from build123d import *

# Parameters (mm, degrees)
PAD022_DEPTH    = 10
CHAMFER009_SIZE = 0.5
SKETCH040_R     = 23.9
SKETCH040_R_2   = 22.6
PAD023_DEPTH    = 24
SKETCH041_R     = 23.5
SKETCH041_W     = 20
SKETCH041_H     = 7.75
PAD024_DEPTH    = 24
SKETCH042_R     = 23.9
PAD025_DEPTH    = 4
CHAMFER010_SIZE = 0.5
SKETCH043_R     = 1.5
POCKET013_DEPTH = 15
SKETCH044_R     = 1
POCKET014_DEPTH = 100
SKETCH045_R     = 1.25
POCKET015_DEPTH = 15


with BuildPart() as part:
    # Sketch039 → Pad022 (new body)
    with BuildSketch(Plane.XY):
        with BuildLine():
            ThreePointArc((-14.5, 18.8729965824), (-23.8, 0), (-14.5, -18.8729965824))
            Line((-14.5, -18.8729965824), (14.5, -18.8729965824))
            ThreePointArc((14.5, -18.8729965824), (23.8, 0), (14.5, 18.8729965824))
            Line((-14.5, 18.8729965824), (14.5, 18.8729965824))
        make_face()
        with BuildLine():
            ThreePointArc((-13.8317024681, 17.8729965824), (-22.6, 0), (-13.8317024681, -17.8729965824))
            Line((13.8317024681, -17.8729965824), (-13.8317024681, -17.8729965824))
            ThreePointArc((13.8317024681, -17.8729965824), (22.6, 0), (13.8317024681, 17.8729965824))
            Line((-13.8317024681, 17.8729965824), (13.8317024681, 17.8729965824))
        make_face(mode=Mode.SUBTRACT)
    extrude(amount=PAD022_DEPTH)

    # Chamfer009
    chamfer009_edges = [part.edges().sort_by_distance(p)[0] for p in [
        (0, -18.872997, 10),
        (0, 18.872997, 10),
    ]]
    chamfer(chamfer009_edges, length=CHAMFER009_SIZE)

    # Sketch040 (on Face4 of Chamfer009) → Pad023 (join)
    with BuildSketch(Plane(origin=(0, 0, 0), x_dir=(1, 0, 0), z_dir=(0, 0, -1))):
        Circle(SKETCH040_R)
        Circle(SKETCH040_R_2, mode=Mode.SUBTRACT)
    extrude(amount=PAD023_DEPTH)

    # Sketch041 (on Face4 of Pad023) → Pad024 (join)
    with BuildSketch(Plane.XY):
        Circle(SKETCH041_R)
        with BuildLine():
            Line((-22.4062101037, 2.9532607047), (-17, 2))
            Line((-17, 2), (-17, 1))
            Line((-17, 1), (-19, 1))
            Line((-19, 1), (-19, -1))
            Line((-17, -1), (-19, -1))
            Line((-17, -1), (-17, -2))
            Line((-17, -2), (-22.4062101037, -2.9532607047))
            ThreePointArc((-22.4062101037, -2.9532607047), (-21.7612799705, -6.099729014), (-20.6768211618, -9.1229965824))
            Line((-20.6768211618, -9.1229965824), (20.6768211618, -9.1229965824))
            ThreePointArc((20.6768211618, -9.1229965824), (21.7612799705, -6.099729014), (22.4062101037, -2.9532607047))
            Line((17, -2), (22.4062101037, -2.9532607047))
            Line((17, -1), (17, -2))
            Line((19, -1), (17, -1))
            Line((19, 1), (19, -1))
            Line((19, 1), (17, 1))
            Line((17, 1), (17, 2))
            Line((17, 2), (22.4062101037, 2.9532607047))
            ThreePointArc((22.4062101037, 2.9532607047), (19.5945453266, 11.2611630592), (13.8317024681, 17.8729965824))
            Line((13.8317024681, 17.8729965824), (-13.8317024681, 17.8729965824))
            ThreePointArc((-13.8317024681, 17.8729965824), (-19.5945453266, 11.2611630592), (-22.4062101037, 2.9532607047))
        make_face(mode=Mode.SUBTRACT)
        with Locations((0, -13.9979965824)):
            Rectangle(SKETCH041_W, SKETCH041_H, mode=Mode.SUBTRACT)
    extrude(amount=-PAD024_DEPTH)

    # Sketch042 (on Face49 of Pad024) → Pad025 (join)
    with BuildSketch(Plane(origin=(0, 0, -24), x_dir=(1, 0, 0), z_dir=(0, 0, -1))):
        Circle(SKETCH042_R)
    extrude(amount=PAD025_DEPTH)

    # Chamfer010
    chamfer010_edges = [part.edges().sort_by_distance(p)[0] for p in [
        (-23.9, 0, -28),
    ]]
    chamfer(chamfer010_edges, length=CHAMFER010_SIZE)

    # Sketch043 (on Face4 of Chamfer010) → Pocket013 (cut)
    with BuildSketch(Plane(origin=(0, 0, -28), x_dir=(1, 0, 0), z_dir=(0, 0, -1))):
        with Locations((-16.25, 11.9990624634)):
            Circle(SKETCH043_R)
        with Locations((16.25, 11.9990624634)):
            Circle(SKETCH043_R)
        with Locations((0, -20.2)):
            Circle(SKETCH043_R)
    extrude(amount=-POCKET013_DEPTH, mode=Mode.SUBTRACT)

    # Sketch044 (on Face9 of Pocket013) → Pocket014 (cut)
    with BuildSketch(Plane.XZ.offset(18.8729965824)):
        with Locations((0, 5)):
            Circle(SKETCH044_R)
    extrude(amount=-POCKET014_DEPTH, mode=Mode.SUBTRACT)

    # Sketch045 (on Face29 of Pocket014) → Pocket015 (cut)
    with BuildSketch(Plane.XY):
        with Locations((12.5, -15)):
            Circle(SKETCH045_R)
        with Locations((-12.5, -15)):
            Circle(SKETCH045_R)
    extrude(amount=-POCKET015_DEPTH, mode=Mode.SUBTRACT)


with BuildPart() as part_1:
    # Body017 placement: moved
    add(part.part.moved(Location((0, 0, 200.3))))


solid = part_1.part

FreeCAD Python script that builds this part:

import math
import FreeCAD as App
import Part
import Sketcher

V = App.Vector
Q = App.Units.Quantity


def edges_at(feature, points):
    """Names of the edges that pass closest to the given points."""
    edges = feature.Shape.Edges
    near = lambda p: min(range(len(edges)), key=lambda i: edges[i].distToShape(Part.Vertex(*p))[0])
    return sorted({f"Edge{near(p) + 1}" for p in points})


def add_polygon(sketch, points):
    """Adds a closed chain of lines whose ends are joined by coincident constraints."""
    first, n = sketch.GeometryCount, len(points)
    for a, b in zip(points, points[1:] + points[:1]):
        sketch.addGeometry(Part.LineSegment(App.Vector(*a, 0), App.Vector(*b, 0)), False)
    for i in range(n):
        sketch.addConstraint(Sketcher.Constraint("Coincident", first + i, 2, first + (i + 1) % n, 1))

doc = App.newDocument("Part")
body = doc.addObject("PartDesign::Body", "Body")

# Sketch on XY plane
sketch1 = doc.addObject("Sketcher::SketchObject", "Sketch")
body.addObject(sketch1)
sketch1.AttachmentSupport = (doc.XY_Plane, [""])
sketch1.MapMode = "FlatFace"
sketch1.addGeometry(Part.ArcOfCircle(Part.Circle(V(0, 0, 0), V(0, 0, 1), 24), math.radians(128), math.radians(232)), False)
sketch1.addGeometry(Part.LineSegment(V(-14, -19, 0), V(14, -19, 0)), False)
sketch1.addGeometry(Part.ArcOfCircle(Part.Circle(V(0, 0, 0), V(0, 0, 1), 24), math.radians(-52), math.radians(52)), False)
sketch1.addGeometry(Part.LineSegment(V(14, 19, 0), V(-14, 19, 0)), False)
sketch1.addGeometry(Part.ArcOfCircle(Part.Circle(V(0, 0, 0), V(0, 0, 1), 23), math.radians(128), math.radians(232)), False)
sketch1.addGeometry(Part.LineSegment(V(-14, 18, 0), V(14, 18, 0)), False)
sketch1.addGeometry(Part.ArcOfCircle(Part.Circle(V(0, 0, 0), V(0, 0, 1), 23), math.radians(-52), math.radians(52)), False)
sketch1.addGeometry(Part.LineSegment(V(14, -18, 0), V(-14, -18, 0)), False)
sketch1.addConstraint(Sketcher.Constraint("Coincident", 0, 2, 1, 1))
sketch1.addConstraint(Sketcher.Constraint("Coincident", 1, 2, 2, 1))
sketch1.addConstraint(Sketcher.Constraint("Coincident", 2, 2, 3, 1))
sketch1.addConstraint(Sketcher.Constraint("Coincident", 3, 2, 0, 1))
sketch1.addConstraint(Sketcher.Constraint("Coincident", 4, 1, 5, 1))
sketch1.addConstraint(Sketcher.Constraint("Coincident", 5, 2, 6, 2))
sketch1.addConstraint(Sketcher.Constraint("Coincident", 6, 1, 7, 1))
sketch1.addConstraint(Sketcher.Constraint("Coincident", 7, 2, 4, 2))
sketch1.addConstraint(Sketcher.Constraint("Horizontal", 1))
sketch1.addConstraint(Sketcher.Constraint("Horizontal", 3))
sketch1.addConstraint(Sketcher.Constraint("Horizontal", 5))
sketch1.addConstraint(Sketcher.Constraint("Horizontal", 7))
sketch1.addConstraint(Sketcher.Constraint("Coincident", 0, 3, -1, 1))
sketch1.addConstraint(Sketcher.Constraint("Coincident", 2, 3, -1, 1))
sketch1.addConstraint(Sketcher.Constraint("Coincident", 4, 3, -1, 1))
sketch1.addConstraint(Sketcher.Constraint("Coincident", 6, 3, -1, 1))
sketch1.addConstraint(Sketcher.Constraint("Equal", 0, 2))
sketch1.addConstraint(Sketcher.Constraint("Equal", 4, 6))
sketch1.addConstraint(Sketcher.Constraint("Vertical", 1, 2, 2, 2))
sketch1.addConstraint(Sketcher.Constraint("Vertical", 5, 2, 6, 1))
sketch1.addConstraint(Sketcher.Constraint("Radius", 0, Q("23.8 mm")))
sketch1.addConstraint(Sketcher.Constraint("Radius", 4, Q("22.6 mm")))
sketch1.addConstraint(Sketcher.Constraint("DistanceX", 1, 1, 1, 2, Q("29 mm")))
sketch1.addConstraint(Sketcher.Constraint("DistanceY", 4, 1, 3, 2, Q("1 mm")))
pad1 = doc.addObject("PartDesign::Pad", "Pad")
body.addObject(pad1)
pad1.Profile = sketch1
pad1.Length = 10
doc.recompute()

chamfer = doc.addObject("PartDesign::Chamfer", "Chamfer")
body.addObject(chamfer)
chamfer.Base = (pad1, edges_at(pad1, [(0, -18.873, 10), (0, 18.873, 10)]))
chamfer.Size = 0.5

# Sketch on XY plane
sketch2 = doc.addObject("Sketcher::SketchObject", "Sketch001")
body.addObject(sketch2)
sketch2.AttachmentSupport = (doc.XY_Plane, [""])
sketch2.MapMode = "FlatFace"
sketch2.addGeometry(Part.Circle(V(0, 0, 0), V(0, 0, 1), 24), False)
sketch2.addGeometry(Part.Circle(V(0, 0, 0), V(0, 0, 1), 23), False)
sketch2.addConstraint(Sketcher.Constraint("Coincident", 0, 3, -1, 1))
sketch2.addConstraint(Sketcher.Constraint("Coincident", 1, 3, -1, 1))
sketch2.addConstraint(Sketcher.Constraint("Diameter", 0, Q("47.8 mm")))
sketch2.addConstraint(Sketcher.Constraint("Diameter", 1, Q("45.2 mm")))
pad2 = doc.addObject("PartDesign::Pad", "Pad001")
body.addObject(pad2)
pad2.Profile = sketch2
pad2.Length = 24
pad2.Reversed = True

# Sketch on XY plane
sketch3 = doc.addObject("Sketcher::SketchObject", "Sketch002")
body.addObject(sketch3)
sketch3.AttachmentSupport = (doc.XY_Plane, [""])
sketch3.MapMode = "FlatFace"
sketch3.addGeometry(Part.Circle(V(0, 0, 0), V(0, 0, 1), 23.5), False)  # 0
add_polygon(sketch3, [(10, -17.9), (-10, -17.9), (-10, -10.1), (10, -10.1)])  # lines 1-4
sketch3.addGeometry(Part.LineSegment(V(-17, 2, 0), V(-22.4, 3, 0)), False)  # 5
sketch3.addGeometry(Part.ArcOfCircle(Part.Circle(V(0, 0, 0), V(0, 0, 1), 22.6), math.radians(128), math.radians(172)), False)  # 6
sketch3.addGeometry(Part.LineSegment(V(-13.8, 17.9, 0), V(13.8, 17.9, 0)), False)  # 7
sketch3.addGeometry(Part.ArcOfCircle(Part.Circle(V(0, 0, 0), V(0, 0, 1), 22.6), math.radians(8), math.radians(52)), False)  # 8
sketch3.addGeometry(Part.LineSegment(V(22.4, 3, 0), V(17, 2, 0)), False)  # 9
sketch3.addGeometry(Part.LineSegment(V(17, 2, 0), V(17, 1, 0)), False)  # 10
sketch3.addGeometry(Part.LineSegment(V(17, 1, 0), V(19, 1, 0)), False)  # 11
sketch3.addGeometry(Part.LineSegment(V(19, 1, 0), V(19, -1, 0)), False)  # 12
sketch3.addGeometry(Part.LineSegment(V(19, -1, 0), V(17, -1, 0)), False)  # 13
sketch3.addGeometry(Part.LineSegment(V(17, -1, 0), V(17, -2, 0)), False)  # 14
sketch3.addGeometry(Part.LineSegment(V(17, -2, 0), V(22.4, -3, 0)), False)  # 15
sketch3.addGeometry(Part.ArcOfCircle(Part.Circle(V(0, 0, 0), V(0, 0, 1), 22.6), math.radians(-23.81), math.radians(-7.51)), False)  # 16
sketch3.addGeometry(Part.LineSegment(V(20.7, -9.1, 0), V(-20.7, -9.1, 0)), False)  # 17
sketch3.addGeometry(Part.ArcOfCircle(Part.Circle(V(0, 0, 0), V(0, 0, 1), 22.6), math.radians(-172.49), math.radians(-156.19)), False)  # 18
sketch3.addGeometry(Part.LineSegment(V(-22.4, -3, 0), V(-17, -2, 0)), False)  # 19
sketch3.addGeometry(Part.LineSegment(V(-17, -2, 0), V(-17, -1, 0)), False)  # 20
sketch3.addGeometry(Part.LineSegment(V(-17, -1, 0), V(-19, -1, 0)), False)  # 21
sketch3.addGeometry(Part.LineSegment(V(-19, -1, 0), V(-19, 1, 0)), False)  # 22
sketch3.addGeometry(Part.LineSegment(V(-19, 1, 0), V(-17, 1, 0)), False)  # 23
sketch3.addGeometry(Part.LineSegment(V(-17, 1, 0), V(-17, 2, 0)), False)  # 24
sketch3.addConstraint(Sketcher.Constraint("Coincident", 5, 2, 6, 2))
sketch3.addConstraint(Sketcher.Constraint("Coincident", 6, 1, 7, 1))
sketch3.addConstraint(Sketcher.Constraint("Coincident", 7, 2, 8, 2))
sketch3.addConstraint(Sketcher.Constraint("Coincident", 8, 1, 9, 1))
sketch3.addConstraint(Sketcher.Constraint("Coincident", 9, 2, 10, 1))
sketch3.addConstraint(Sketcher.Constraint("Coincident", 10, 2, 11, 1))
sketch3.addConstraint(Sketcher.Constraint("Coincident", 11, 2, 12, 1))
sketch3.addConstraint(Sketcher.Constraint("Coincident", 12, 2, 13, 1))
sketch3.addConstraint(Sketcher.Constraint("Coincident", 13, 2, 14, 1))
sketch3.addConstraint(Sketcher.Constraint("Coincident", 14, 2, 15, 1))
sketch3.addConstraint(Sketcher.Constraint("Coincident", 15, 2, 16, 2))
sketch3.addConstraint(Sketcher.Constraint("Coincident", 16, 1, 17, 1))
sketch3.addConstraint(Sketcher.Constraint("Coincident", 17, 2, 18, 2))
sketch3.addConstraint(Sketcher.Constraint("Coincident", 18, 1, 19, 1))
sketch3.addConstraint(Sketcher.Constraint("Coincident", 19, 2, 20, 1))
sketch3.addConstraint(Sketcher.Constraint("Coincident", 20, 2, 21, 1))
sketch3.addConstraint(Sketcher.Constraint("Coincident", 21, 2, 22, 1))
sketch3.addConstraint(Sketcher.Constraint("Coincident", 22, 2, 23, 1))
sketch3.addConstraint(Sketcher.Constraint("Coincident", 23, 2, 24, 1))
sketch3.addConstraint(Sketcher.Constraint("Coincident", 24, 2, 5, 1))
sketch3.addConstraint(Sketcher.Constraint("Horizontal", 1))
sketch3.addConstraint(Sketcher.Constraint("Vertical", 2))
sketch3.addConstraint(Sketcher.Constraint("Horizontal", 3))
sketch3.addConstraint(Sketcher.Constraint("Vertical", 4))
sketch3.addConstraint(Sketcher.Constraint("Horizontal", 7))
sketch3.addConstraint(Sketcher.Constraint("Vertical", 10))
sketch3.addConstraint(Sketcher.Constraint("Horizontal", 11))
sketch3.addConstraint(Sketcher.Constraint("Vertical", 12))
sketch3.addConstraint(Sketcher.Constraint("Horizontal", 13))
sketch3.addConstraint(Sketcher.Constraint("Vertical", 14))
sketch3.addConstraint(Sketcher.Constraint("Horizontal", 17))
sketch3.addConstraint(Sketcher.Constraint("Vertical", 20))
sketch3.addConstraint(Sketcher.Constraint("Horizontal", 21))
sketch3.addConstraint(Sketcher.Constraint("Vertical", 22))
sketch3.addConstraint(Sketcher.Constraint("Horizontal", 23))
sketch3.addConstraint(Sketcher.Constraint("Vertical", 24))
sketch3.addConstraint(Sketcher.Constraint("Coincident", 0, 3, -1, 1))
sketch3.addConstraint(Sketcher.Constraint("Coincident", 6, 3, -1, 1))
sketch3.addConstraint(Sketcher.Constraint("Coincident", 8, 3, -1, 1))
sketch3.addConstraint(Sketcher.Constraint("Coincident", 16, 3, -1, 1))
sketch3.addConstraint(Sketcher.Constraint("Coincident", 18, 3, -1, 1))
sketch3.addConstraint(Sketcher.Constraint("Equal", 6, 8))
sketch3.addConstraint(Sketcher.Constraint("Equal", 8, 16))
sketch3.addConstraint(Sketcher.Constraint("Equal", 16, 18))
sketch3.addConstraint(Sketcher.Constraint("Symmetric", 9, 2, 19, 2, -1, 1))
sketch3.addConstraint(Sketcher.Constraint("Symmetric", 11, 2, 21, 2, -1, 1))
sketch3.addConstraint(Sketcher.Constraint("Symmetric", 13, 2, 23, 2, -1, 1))
sketch3.addConstraint(Sketcher.Constraint("Symmetric", 14, 2, 19, 2, -2))
sketch3.addConstraint(Sketcher.Constraint("Parallel", 5, 15))
sketch3.addConstraint(Sketcher.Constraint("Parallel", 9, 19))
sketch3.addConstraint(Sketcher.Constraint("Horizontal", 5, 2, 8, 1))
sketch3.addConstraint(Sketcher.Constraint("Horizontal", 15, 2, 18, 1))
sketch3.addConstraint(Sketcher.Constraint("Horizontal", 13, 2, 20, 2))
sketch3.addConstraint(Sketcher.Constraint("Equal", 23, 12))
sketch3.addConstraint(Sketcher.Constraint("Diameter", 0, Q("47 mm")))
sketch3.addConstraint(Sketcher.Constraint("Radius", 6, Q("22.6 mm")))
sketch3.addConstraint(Sketcher.Constraint("DistanceX", 1, 2, 1, 1, Q("20 mm")))
sketch3.addConstraint(Sketcher.Constraint("DistanceX", 11, 1, 11, 2, Q("2 mm")))
sketch3.addConstraint(Sketcher.Constraint("DistanceY", 10, 2, 10, 1, Q("1 mm")))
sketch3.addConstraint(Sketcher.Constraint("Angle", 5, Q("170 deg")))
sketch3.addConstraint(Sketcher.Constraint("DistanceX", 1, 2, -1, 1, Q("10 mm")))
sketch3.addConstraint(Sketcher.Constraint("DistanceX", -1, 1, 9, 2, Q("17 mm")))
sketch3.addConstraint(Sketcher.Constraint("DistanceY", 2, 2, 17, 2, Q("1 mm")))
sketch3.addConstraint(Sketcher.Constraint("DistanceY", 2, 1, 2, 2, Q("7.75 mm")))
sketch3.addConstraint(Sketcher.Constraint("DistanceX", 7, 1, 7, 2, Q("27.663405 mm")))
sketch3.addConstraint(Sketcher.Constraint("DistanceX", 17, 2, 17, 1, Q("41.353642 mm")))
pad3 = doc.addObject("PartDesign::Pad", "Pad002")
body.addObject(pad3)
pad3.Profile = sketch3
pad3.Length = 24
pad3.Reversed = True

# Sketch on XY plane
sketch4 = doc.addObject("Sketcher::SketchObject", "Sketch003")
body.addObject(sketch4)
sketch4.AttachmentSupport = (doc.XY_Plane, [""])
sketch4.MapMode = "FlatFace"
sketch4.AttachmentOffset = App.Placement(V(0, 0, -24), App.Rotation())
sketch4.addGeometry(Part.Circle(V(0, 0, 0), V(0, 0, 1), 24), False)
sketch4.addConstraint(Sketcher.Constraint("Coincident", 0, 3, -1, 1))
sketch4.addConstraint(Sketcher.Constraint("Diameter", 0, Q("47.8 mm")))
pad4 = doc.addObject("PartDesign::Pad", "Pad003")
body.addObject(pad4)
pad4.Profile = sketch4
pad4.Length = 4
pad4.Reversed = True
doc.recompute()

chamfer2 = doc.addObject("PartDesign::Chamfer", "Chamfer001")
body.addObject(chamfer2)
chamfer2.Base = (pad4, edges_at(pad4, [(-23.9, 0, -28)]))
chamfer2.Size = 0.5

# Sketch on XY plane
sketch5 = doc.addObject("Sketcher::SketchObject", "Sketch004")
body.addObject(sketch5)
sketch5.AttachmentSupport = (doc.XY_Plane, [""])
sketch5.MapMode = "FlatFace"
sketch5.AttachmentOffset = App.Placement(V(0, 0, -28), App.Rotation())
sketch5.addGeometry(Part.Circle(V(-16.2, -12, 0), V(0, 0, 1), 1.5), False)
sketch5.addGeometry(Part.Circle(V(16.2, -12, 0), V(0, 0, 1), 1.5), False)
sketch5.addGeometry(Part.Circle(V(0, 20.2, 0), V(0, 0, 1), 1.5), False)
sketch5.addConstraint(Sketcher.Constraint("Equal", 0, 1))
sketch5.addConstraint(Sketcher.Constraint("Equal", 1, 2))
sketch5.addConstraint(Sketcher.Constraint("Symmetric", 0, 3, 1, 3, -2))
sketch5.addConstraint(Sketcher.Constraint("PointOnObject", 2, 3, -2))
sketch5.addConstraint(Sketcher.Constraint("Diameter", 0, Q("3 mm")))
sketch5.addConstraint(Sketcher.Constraint("DistanceY", -1, 1, 2, 3, Q("20.2 mm")))
sketch5.addConstraint(Sketcher.Constraint("DistanceX", 0, 3, 1, 3, Q("32.5 mm")))
sketch5.addConstraint(Sketcher.Constraint("DistanceY", 0, 3, -1, 1, Q("11.999062 mm")))
pocket1 = doc.addObject("PartDesign::Pocket", "Pocket")
body.addObject(pocket1)
pocket1.Profile = sketch5
pocket1.Length = 15
pocket1.Reversed = True

# Sketch on XZ plane
sketch6 = doc.addObject("Sketcher::SketchObject", "Sketch005")
body.addObject(sketch6)
sketch6.AttachmentSupport = (doc.XZ_Plane, [""])
sketch6.MapMode = "FlatFace"
sketch6.AttachmentOffset = App.Placement(V(0, 0, 18.872997), App.Rotation())
sketch6.addGeometry(Part.Circle(V(0, 5, 0), V(0, 0, 1), 1), False)
sketch6.addConstraint(Sketcher.Constraint("PointOnObject", 0, 3, -2))
sketch6.addConstraint(Sketcher.Constraint("Diameter", 0, Q("2 mm")))
sketch6.addConstraint(Sketcher.Constraint("DistanceY", -1, 1, 0, 3, Q("5 mm")))
pocket2 = doc.addObject("PartDesign::Pocket", "Pocket001")
body.addObject(pocket2)
pocket2.Profile = sketch6
pocket2.Length = 100

# Sketch on XY plane
sketch7 = doc.addObject("Sketcher::SketchObject", "Sketch006")
body.addObject(sketch7)
sketch7.AttachmentSupport = (doc.XY_Plane, [""])
sketch7.MapMode = "FlatFace"
sketch7.addGeometry(Part.Circle(V(12.5, -15, 0), V(0, 0, 1), 1.2), False)
sketch7.addGeometry(Part.Circle(V(-12.5, -15, 0), V(0, 0, 1), 1.2), False)
sketch7.addConstraint(Sketcher.Constraint("Equal", 0, 1))
sketch7.addConstraint(Sketcher.Constraint("Symmetric", 0, 3, 1, 3, -2))
sketch7.addConstraint(Sketcher.Constraint("Diameter", 0, Q("2.5 mm")))
sketch7.addConstraint(Sketcher.Constraint("DistanceY", 0, 3, -1, 1, Q("15 mm")))
sketch7.addConstraint(Sketcher.Constraint("DistanceX", 1, 3, 0, 3, Q("25 mm")))
pocket3 = doc.addObject("PartDesign::Pocket", "Pocket002")
body.addObject(pocket3)
pocket3.Profile = sketch7
pocket3.Length = 15
body2 = doc.addObject("PartDesign::Body", "Body001")
doc.recompute()

body.Placement = App.Placement(V(0, 0, 200.3), App.Rotation(V(0, 0, 1), 0))
boolean = doc.addObject("PartDesign::Boolean", "Boolean")
body2.addObject(boolean)
boolean.Type = "Fuse"
boolean.addObjects([body])

doc.recompute()
